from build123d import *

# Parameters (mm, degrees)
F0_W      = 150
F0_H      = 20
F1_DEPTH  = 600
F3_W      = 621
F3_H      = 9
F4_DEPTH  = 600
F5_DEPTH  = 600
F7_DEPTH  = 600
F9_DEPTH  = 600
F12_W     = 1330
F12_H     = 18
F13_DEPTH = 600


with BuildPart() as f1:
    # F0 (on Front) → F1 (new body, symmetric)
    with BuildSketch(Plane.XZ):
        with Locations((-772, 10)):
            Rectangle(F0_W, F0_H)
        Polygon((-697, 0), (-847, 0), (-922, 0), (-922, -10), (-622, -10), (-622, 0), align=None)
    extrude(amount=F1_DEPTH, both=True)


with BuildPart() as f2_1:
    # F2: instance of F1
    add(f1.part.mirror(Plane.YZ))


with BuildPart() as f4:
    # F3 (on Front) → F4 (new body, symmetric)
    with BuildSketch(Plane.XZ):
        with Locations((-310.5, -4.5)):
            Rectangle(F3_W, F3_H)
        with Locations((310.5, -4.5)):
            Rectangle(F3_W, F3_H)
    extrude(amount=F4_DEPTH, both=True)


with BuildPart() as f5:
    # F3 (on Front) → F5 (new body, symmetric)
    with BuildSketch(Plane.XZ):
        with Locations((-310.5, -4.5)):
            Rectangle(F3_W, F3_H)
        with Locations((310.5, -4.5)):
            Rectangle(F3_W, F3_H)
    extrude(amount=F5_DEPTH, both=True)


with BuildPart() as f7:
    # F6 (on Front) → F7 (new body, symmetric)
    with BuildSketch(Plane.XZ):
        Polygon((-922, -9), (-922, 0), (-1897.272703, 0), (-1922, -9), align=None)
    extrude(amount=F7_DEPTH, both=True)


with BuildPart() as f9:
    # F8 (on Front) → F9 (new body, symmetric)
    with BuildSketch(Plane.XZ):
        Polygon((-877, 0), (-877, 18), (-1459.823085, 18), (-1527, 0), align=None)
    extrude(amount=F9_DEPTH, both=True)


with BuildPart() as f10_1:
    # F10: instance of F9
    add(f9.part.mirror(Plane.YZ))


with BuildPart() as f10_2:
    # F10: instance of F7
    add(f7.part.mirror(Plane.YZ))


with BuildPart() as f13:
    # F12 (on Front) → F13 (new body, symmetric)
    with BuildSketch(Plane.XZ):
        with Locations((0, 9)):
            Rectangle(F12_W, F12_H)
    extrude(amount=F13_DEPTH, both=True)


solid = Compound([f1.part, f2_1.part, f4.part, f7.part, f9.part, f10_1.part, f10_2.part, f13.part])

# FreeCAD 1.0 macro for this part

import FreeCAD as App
import Part
import Sketcher
Q = App.Units.Quantity

doc = App.newDocument("Part")
body = doc.addObject("PartDesign::Body", "Body")

# Sketch on XZ plane
sketch1 = doc.addObject("Sketcher::SketchObject", "Sketch")
body.addObject(sketch1)
sketch1.AttachmentSupport = (doc.XZ_Plane, [""])
sketch1.MapMode = "FlatFace"
sketch1.addGeometry(Part.LineSegment(App.Vector(-847, 20, 0), App.Vector(-847, 0, 0)), False)
sketch1.addGeometry(Part.LineSegment(App.Vector(-847, 0, 0), App.Vector(-922, 0, 0)), False)
sketch1.addGeometry(Part.LineSegment(App.Vector(-922, 0, 0), App.Vector(-922, -10, 0)), False)
sketch1.addGeometry(Part.LineSegment(App.Vector(-922, -10, 0), App.Vector(-622, -10, 0)), False)
sketch1.addGeometry(Part.LineSegment(App.Vector(-622, -10, 0), App.Vector(-622, 0, 0)), False)
sketch1.addGeometry(Part.LineSegment(App.Vector(-622, 0, 0), App.Vector(-697, 0, 0)), False)
sketch1.addGeometry(Part.LineSegment(App.Vector(-697, 0, 0), App.Vector(-697, 20, 0)), False)
sketch1.addGeometry(Part.LineSegment(App.Vector(-697, 20, 0), App.Vector(-847, 20, 0)), False)
sketch1.addConstraint(Sketcher.Constraint("Coincident", 0, 2, 1, 1))
sketch1.addConstraint(Sketcher.Constraint("Coincident", 1, 2, 2, 1))
sketch1.addConstraint(Sketcher.Constraint("Coincident", 2, 2, 3, 1))
sketch1.addConstraint(Sketcher.Constraint("Coincident", 3, 2, 4, 1))
sketch1.addConstraint(Sketcher.Constraint("Coincident", 4, 2, 5, 1))
sketch1.addConstraint(Sketcher.Constraint("Coincident", 5, 2, 6, 1))
sketch1.addConstraint(Sketcher.Constraint("Coincident", 6, 2, 7, 1))
sketch1.addConstraint(Sketcher.Constraint("Coincident", 7, 2, 0, 1))
sketch1.addConstraint(Sketcher.Constraint("Vertical", 0))
sketch1.addConstraint(Sketcher.Constraint("Horizontal", 1))
sketch1.addConstraint(Sketcher.Constraint("Vertical", 2))
sketch1.addConstraint(Sketcher.Constraint("Horizontal", 3))
sketch1.addConstraint(Sketcher.Constraint("Vertical", 4))
sketch1.addConstraint(Sketcher.Constraint("Horizontal", 5))
sketch1.addConstraint(Sketcher.Constraint("Vertical", 6))
sketch1.addConstraint(Sketcher.Constraint("Horizontal", 7))
sketch1.addConstraint(Sketcher.Constraint("PointOnObject", 0, 2, -1))
sketch1.addConstraint(Sketcher.Constraint("PointOnObject", 4, 2, -1))
sketch1.addConstraint(Sketcher.Constraint("Equal", 1, 5))
sketch1.addConstraint(Sketcher.Constraint("DistanceX", 1, 2, 1, 1, 75.0))
sketch1.addConstraint(Sketcher.Constraint("DistanceX", 3, 1, 3, 2, 300.0))
sketch1.addConstraint(Sketcher.Constraint("DistanceY", 0, 2, 0, 1, 20.0))
sketch1.addConstraint(Sketcher.Constraint("DistanceY", 2, 2, 2, 1, 10.0))
sketch1.addConstraint(Sketcher.Constraint("DistanceX", 0, 2, -1, 1, 847.0))
pad1 = doc.addObject("PartDesign::Pad", "Pad")
body.addObject(pad1)
pad1.Profile = sketch1
pad1.Length = 1200
pad1.Midplane = True
body2 = doc.addObject("PartDesign::Body", "Body001")
doc.recompute()

mirroring = doc.addObject("Part::Mirroring", "Mirroring")
mirroring.Source = body
mirroring.Base = App.Vector(0, 0, 0)
mirroring.Normal = App.Vector(1, 0, 0)
body2.BaseFeature = mirroring
doc.recompute()
body3 = doc.addObject("PartDesign::Body", "Body002")

# Sketch on XZ plane
sketch2 = doc.addObject("Sketcher::SketchObject", "Sketch001")
body3.addObject(sketch2)
sketch2.AttachmentSupport = (doc.getObject("XZ_Plane002"), [""])
sketch2.MapMode = "FlatFace"
sketch2.addGeometry(Part.LineSegment(App.Vector(-621, 0, 0), App.Vector(-621, -9, 0)), False)
sketch2.addGeometry(Part.LineSegment(App.Vector(-621, -9, 0), App.Vector(621, -9, 0)), False)
sketch2.addGeometry(Part.LineSegment(App.Vector(621, -9, 0), App.Vector(621, 0, 0)), False)
sketch2.addGeometry(Part.LineSegment(App.Vector(621, 0, 0), App.Vector(-621, 0, 0)), False)
sketch2.addConstraint(Sketcher.Constraint("Coincident", 0, 2, 1, 1))
sketch2.addConstraint(Sketcher.Constraint("Coincident", 1, 2, 2, 1))
sketch2.addConstraint(Sketcher.Constraint("Coincident", 2, 2, 3, 1))
sketch2.addConstraint(Sketcher.Constraint("Coincident", 3, 2, 0, 1))
sketch2.addConstraint(Sketcher.Constraint("Vertical", 0))
sketch2.addConstraint(Sketcher.Constraint("Horizontal", 1))
sketch2.addConstraint(Sketcher.Constraint("Vertical", 2))
sketch2.addConstraint(Sketcher.Constraint("Horizontal", 3))
sketch2.addConstraint(Sketcher.Constraint("Symmetric", 2, 2, 3, 2, -1, 1))
sketch2.addConstraint(Sketcher.Constraint("DistanceX", 1, 1, 1, 2, 1242.0))
sketch2.addConstraint(Sketcher.Constraint("DistanceY", 0, 2, 0, 1, 9.0))
pad2 = doc.addObject("PartDesign::Pad", "Pad001")
body3.addObject(pad2)
pad2.Profile = sketch2
pad2.Length = 1200
pad2.Midplane = True
body4 = doc.addObject("PartDesign::Body", "Body003")

# Sketch on XZ plane
sketch3 = doc.addObject("Sketcher::SketchObject", "Sketch002")
body4.addObject(sketch3)
sketch3.AttachmentSupport = (doc.getObject("XZ_Plane003"), [""])
sketch3.MapMode = "FlatFace"
sketch3.addGeometry(Part.LineSegment(App.Vector(-621, 0, 0), App.Vector(-621, -9, 0)), False)
sketch3.addGeometry(Part.LineSegment(App.Vector(-621, -9, 0), App.Vector(621, -9, 0)), False)
sketch3.addGeometry(Part.LineSegment(App.Vector(621, -9, 0), App.Vector(621, 0, 0)), False)
sketch3.addGeometry(Part.LineSegment(App.Vector(621, 0, 0), App.Vector(-621, 0, 0)), False)
sketch3.addConstraint(Sketcher.Constraint("Coincident", 0, 2, 1, 1))
sketch3.addConstraint(Sketcher.Constraint("Coincident", 1, 2, 2, 1))
sketch3.addConstraint(Sketcher.Constraint("Coincident", 2, 2, 3, 1))
sketch3.addConstraint(Sketcher.Constraint("Coincident", 3, 2, 0, 1))
sketch3.addConstraint(Sketcher.Constraint("Vertical", 0))
sketch3.addConstraint(Sketcher.Constraint("Horizontal", 1))
sketch3.addConstraint(Sketcher.Constraint("Vertical", 2))
sketch3.addConstraint(Sketcher.Constraint("Horizontal", 3))
sketch3.addConstraint(Sketcher.Constraint("Symmetric", 2, 2, 3, 2, -1, 1))
sketch3.addConstraint(Sketcher.Constraint("DistanceX", 1, 1, 1, 2, 1242.0))
sketch3.addConstraint(Sketcher.Constraint("DistanceY", 0, 2, 0, 1, 9.0))
pad3 = doc.addObject("PartDesign::Pad", "Pad002")
body4.addObject(pad3)
pad3.Profile = sketch3
pad3.Length = 1200
pad3.Midplane = True
body5 = doc.addObject("PartDesign::Body", "Body004")

# Sketch on XZ plane
sketch4 = doc.addObject("Sketcher::SketchObject", "Sketch003")
body5.addObject(sketch4)
sketch4.AttachmentSupport = (doc.getObject("XZ_Plane004"), [""])
sketch4.MapMode = "FlatFace"
sketch4.addGeometry(Part.LineSegment(App.Vector(-922, -9, 0), App.Vector(-922, 0, 0)), False)
sketch4.addGeometry(Part.LineSegment(App.Vector(-922, 0, 0), App.Vector(-1897.272703, 0, 0)), False)
sketch4.addGeometry(Part.LineSegment(App.Vector(-1897.272703, 0, 0), App.Vector(-1922, -9, 0)), False)
sketch4.addGeometry(Part.LineSegment(App.Vector(-1922, -9, 0), App.Vector(-922, -9, 0)), False)
sketch4.addConstraint(Sketcher.Constraint("Coincident", 0, 2, 1, 1))
sketch4.addConstraint(Sketcher.Constraint("Coincident", 1, 2, 2, 1))
sketch4.addConstraint(Sketcher.Constraint("Coincident", 2, 2, 3, 1))
sketch4.addConstraint(Sketcher.Constraint("Coincident", 3, 2, 0, 1))
sketch4.addConstraint(Sketcher.Constraint("Vertical", 0))
sketch4.addConstraint(Sketcher.Constraint("Horizontal", 1))
sketch4.addConstraint(Sketcher.Constraint("Horizontal", 3))
sketch4.addConstraint(Sketcher.Constraint("PointOnObject", 0, 2, -1))
sketch4.addConstraint(Sketcher.Constraint("DistanceX", 3, 1, 3, 2, 1000.0))
sketch4.addConstraint(Sketcher.Constraint("DistanceY", 0, 1, 0, 2, 9.0))
sketch4.addConstraint(Sketcher.Constraint("Angle", 2, Q("-160 deg")))
sketch4.addConstraint(Sketcher.Constraint("DistanceX", 0, 2, -1, 1, 922.0))
pad4 = doc.addObject("PartDesign::Pad", "Pad003")
body5.addObject(pad4)
pad4.Profile = sketch4
pad4.Length = 1200
pad4.Midplane = True
body6 = doc.addObject("PartDesign::Body", "Body005")

# Sketch on XZ plane
sketch5 = doc.addObject("Sketcher::SketchObject", "Sketch004")
body6.addObject(sketch5)
sketch5.AttachmentSupport = (doc.getObject("XZ_Plane005"), [""])
sketch5.MapMode = "FlatFace"
sketch5.addGeometry(Part.LineSegment(App.Vector(-877, 0, 0), App.Vector(-877, 18, 0)), False)
sketch5.addGeometry(Part.LineSegment(App.Vector(-877, 18, 0), App.Vector(-1459.823085, 18, 0)), False)
sketch5.addGeometry(Part.LineSegment(App.Vector(-1459.823085, 18, 0), App.Vector(-1527, 0, 0)), False)
sketch5.addGeometry(Part.LineSegment(App.Vector(-1527, 0, 0), App.Vector(-877, 0, 0)), False)
sketch5.addConstraint(Sketcher.Constraint("Coincident", 0, 2, 1, 1))
sketch5.addConstraint(Sketcher.Constraint("Coincident", 1, 2, 2, 1))
sketch5.addConstraint(Sketcher.Constraint("Coincident", 2, 2, 3, 1))
sketch5.addConstraint(Sketcher.Constraint("Coincident", 3, 2, 0, 1))
sketch5.addConstraint(Sketcher.Constraint("Vertical", 0))
sketch5.addConstraint(Sketcher.Constraint("Horizontal", 1))
sketch5.addConstraint(Sketcher.Constraint("Horizontal", 3))
sketch5.addConstraint(Sketcher.Constraint("PointOnObject", 2, 2, -1))
sketch5.addConstraint(Sketcher.Constraint("DistanceX", 3, 1, 3, 2, 650.0))
sketch5.addConstraint(Sketcher.Constraint("DistanceY", 0, 1, 0, 2, 18.0))
sketch5.addConstraint(Sketcher.Constraint("Angle", 2, Q("-165 deg")))
sketch5.addConstraint(Sketcher.Constraint("DistanceX", 0, 2, -1, 1, 877.0))
pad5 = doc.addObject("PartDesign::Pad", "Pad004")
body6.addObject(pad5)
pad5.Profile = sketch5
pad5.Length = 1200
pad5.Midplane = True
body7 = doc.addObject("PartDesign::Body", "Body006")
doc.recompute()

mirroring2 = doc.addObject("Part::Mirroring", "Mirroring001")
mirroring2.Source = body6
mirroring2.Base = App.Vector(0, 0, 0)
mirroring2.Normal = App.Vector(1, 0, 0)
body7.BaseFeature = mirroring2
doc.recompute()
body8 = doc.addObject("PartDesign::Body", "Body007")
doc.recompute()

mirroring3 = doc.addObject("Part::Mirroring", "Mirroring002")
mirroring3.Source = body5
mirroring3.Base = App.Vector(0, 0, 0)
mirroring3.Normal = App.Vector(1, 0, 0)
body8.BaseFeature = mirroring3
doc.recompute()
body9 = doc.addObject("PartDesign::Body", "Body008")

# Sketch on XZ plane
sketch6 = doc.addObject("Sketcher::SketchObject", "Sketch005")
body9.addObject(sketch6)
sketch6.AttachmentSupport = (doc.getObject("XZ_Plane008"), [""])
sketch6.MapMode = "FlatFace"
sketch6.addGeometry(Part.LineSegment(App.Vector(-665, 18, 0), App.Vector(-665, 0, 0)), False)
sketch6.addGeometry(Part.LineSegment(App.Vector(-665, 0, 0), App.Vector(665, 0, 0)), False)
sketch6.addGeometry(Part.LineSegment(App.Vector(665, 0, 0), App.Vector(665, 18, 0)), False)
sketch6.addGeometry(Part.LineSegment(App.Vector(665, 18, 0), App.Vector(-665, 18, 0)), False)
sketch6.addConstraint(Sketcher.Constraint("Coincident", 0, 2, 1, 1))
sketch6.addConstraint(Sketcher.Constraint("Coincident", 1, 2, 2, 1))
sketch6.addConstraint(Sketcher.Constraint("Coincident", 2, 2, 3, 1))
sketch6.addConstraint(Sketcher.Constraint("Coincident", 3, 2, 0, 1))
sketch6.addConstraint(Sketcher.Constraint("Vertical", 0))
sketch6.addConstraint(Sketcher.Constraint("Horizontal", 1))
sketch6.addConstraint(Sketcher.Constraint("Vertical", 2))
sketch6.addConstraint(Sketcher.Constraint("Horizontal", 3))
sketch6.addConstraint(Sketcher.Constraint("Symmetric", 0, 2, 1, 2, -1, 1))
sketch6.addConstraint(Sketcher.Constraint("DistanceX", 1, 1, 1, 2, 1330.0))
sketch6.addConstraint(Sketcher.Constraint("DistanceY", 0, 2, 0, 1, 18.0))
pad6 = doc.addObject("PartDesign::Pad", "Pad005")
body9.addObject(pad6)
pad6.Profile = sketch6
pad6.Length = 1200
pad6.Midplane = True
body3.Visibility = False
mirroring.Visibility = False
mirroring2.Visibility = False
mirroring3.Visibility = False

doc.recompute()
